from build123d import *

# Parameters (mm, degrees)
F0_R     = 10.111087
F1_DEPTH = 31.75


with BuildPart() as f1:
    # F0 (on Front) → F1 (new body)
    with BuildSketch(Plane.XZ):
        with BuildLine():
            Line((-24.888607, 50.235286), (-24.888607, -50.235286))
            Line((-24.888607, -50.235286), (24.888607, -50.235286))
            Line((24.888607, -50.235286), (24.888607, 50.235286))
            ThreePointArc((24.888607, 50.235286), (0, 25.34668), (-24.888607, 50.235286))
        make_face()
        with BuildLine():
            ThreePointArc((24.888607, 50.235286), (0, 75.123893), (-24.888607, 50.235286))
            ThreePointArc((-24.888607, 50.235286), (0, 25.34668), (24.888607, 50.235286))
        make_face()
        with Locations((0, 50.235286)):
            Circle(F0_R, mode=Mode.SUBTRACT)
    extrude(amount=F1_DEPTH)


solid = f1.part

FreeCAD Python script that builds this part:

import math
import FreeCAD as App
import Part
import Sketcher
from FreeCAD import Vector
Q = App.Units.Quantity

doc = App.newDocument("Part")
body = doc.addObject("PartDesign::Body", "Body")

sketch1 = body.newObject("Sketcher::SketchObject", "Sketch")
sketch1.AttachmentSupport = (doc.getObject("XZ_Plane"), [""])
sketch1.MapMode = "FlatFace"
sketch1.addGeometry([
    Part.LineSegment(Vector(-25, 50, 0), Vector(-25, -50, 0)),
    Part.LineSegment(Vector(-25, -50, 0), Vector(25, -50, 0)),
    Part.LineSegment(Vector(25, -50, 0), Vector(25, 50, 0)),
    Part.ArcOfCircle(Part.Circle(Vector(0, 50, 0), Vector(0, 0, 1), 25), math.radians(0), math.radians(180)),
    Part.Circle(Vector(0, 50, 0), Vector(0, 0, 1), 10),
], False)
sketch1.addConstraint([
    Sketcher.Constraint("Coincident", 0, 2, 1, 1),
    Sketcher.Constraint("Coincident", 1, 2, 2, 1),
    Sketcher.Constraint("Tangent", 2, 2, 3, 1),
    Sketcher.Constraint("Tangent", 3, 2, 0, 1),
    Sketcher.Constraint("Vertical", 0),
    Sketcher.Constraint("Horizontal", 1),
    Sketcher.Constraint("Vertical", 2),
    Sketcher.Constraint("Coincident", 4, 3, 3, 3),
    Sketcher.Constraint("Symmetric", 0, 2, 2, 2, -1, 1),
    Sketcher.Constraint("Diameter", 4, 20.222174),
    Sketcher.Constraint("Radius", 3, 24.888607),
    Sketcher.Constraint("DistanceY", 0, 2, 0, 1, 100.470572),
])
pad1 = body.newObject("PartDesign::Pad", "Pad")
pad1.Profile = sketch1
pad1.Length = Q("1.25 in")

doc.recompute()
